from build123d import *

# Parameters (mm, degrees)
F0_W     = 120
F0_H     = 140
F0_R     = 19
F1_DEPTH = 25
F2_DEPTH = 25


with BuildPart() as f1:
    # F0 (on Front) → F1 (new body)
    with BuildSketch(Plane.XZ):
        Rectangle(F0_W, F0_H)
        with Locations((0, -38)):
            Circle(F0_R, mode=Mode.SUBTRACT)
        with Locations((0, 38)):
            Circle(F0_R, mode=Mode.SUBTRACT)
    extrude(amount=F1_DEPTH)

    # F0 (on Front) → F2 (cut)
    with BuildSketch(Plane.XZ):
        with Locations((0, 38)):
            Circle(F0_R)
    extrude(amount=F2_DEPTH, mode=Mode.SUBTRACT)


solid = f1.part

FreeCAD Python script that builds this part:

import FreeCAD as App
import Part
import Sketcher

V = App.Vector
Q = App.Units.Quantity

doc = App.newDocument("Part")
body = doc.addObject("PartDesign::Body", "Body")

sketch1 = doc.addObject("Sketcher::SketchObject", "Sketch")
body.addObject(sketch1)
sketch1.AttachmentSupport = (doc.XZ_Plane, [""])
sketch1.MapMode = "FlatFace"
sketch1.addGeometry([
    Part.LineSegment(V(-60, 70, 0), V(-60, -70, 0)),
    Part.LineSegment(V(-60, -70, 0), V(60, -70, 0)),
    Part.LineSegment(V(60, -70, 0), V(60, 70, 0)),
    Part.LineSegment(V(60, 70, 0), V(-60, 70, 0)),
    Part.Circle(V(0, -38, 0), V(0, 0, 1), 19),
    Part.Circle(V(0, 38, 0), V(0, 0, 1), 19),
], False)
sketch1.addConstraint([
    Sketcher.Constraint("Coincident", 0, 2, 1, 1),
    Sketcher.Constraint("Coincident", 1, 2, 2, 1),
    Sketcher.Constraint("Coincident", 2, 2, 3, 1),
    Sketcher.Constraint("Coincident", 3, 2, 0, 1),
    Sketcher.Constraint("Vertical", 0),
    Sketcher.Constraint("Horizontal", 1),
    Sketcher.Constraint("Vertical", 2),
    Sketcher.Constraint("Horizontal", 3),
    Sketcher.Constraint("Equal", 4, 5),
    Sketcher.Constraint("Symmetric", 4, 3, 5, 3, -1, 1),
    Sketcher.Constraint("Symmetric", 0, 2, 2, 2, -1, 1),
    Sketcher.Constraint("PointOnObject", 4, 3, -2),
    Sketcher.Constraint("Diameter", 4, Q("38 mm")),
    Sketcher.Constraint("DistanceX", 1, 1, 1, 2, Q("120 mm")),
    Sketcher.Constraint("DistanceY", 0, 2, 0, 1, Q("140 mm")),
    Sketcher.Constraint("DistanceY", 4, 3, -1, 1, Q("38 mm")),
])
pad1 = doc.addObject("PartDesign::Pad", "Pad")
body.addObject(pad1)
pad1.Profile = sketch1
pad1.Length = 25

sketch2 = doc.addObject("Sketcher::SketchObject", "Sketch001")
body.addObject(sketch2)
sketch2.AttachmentSupport = (doc.XZ_Plane, [""])
sketch2.MapMode = "FlatFace"
sketch2.addGeometry(Part.Circle(V(0, 38, 0), V(0, 0, 1), 19), False)
sketch2.addConstraint([
    Sketcher.Constraint("PointOnObject", 0, 3, -2),
    Sketcher.Constraint("Diameter", 0, Q("38 mm")),
    Sketcher.Constraint("DistanceY", -1, 1, 0, 3, Q("38 mm")),
])
pocket1 = doc.addObject("PartDesign::Pocket", "Pocket")
body.addObject(pocket1)
pocket1.Profile = sketch2
pocket1.Length = 25
pocket1.Reversed = True

doc.recompute()
